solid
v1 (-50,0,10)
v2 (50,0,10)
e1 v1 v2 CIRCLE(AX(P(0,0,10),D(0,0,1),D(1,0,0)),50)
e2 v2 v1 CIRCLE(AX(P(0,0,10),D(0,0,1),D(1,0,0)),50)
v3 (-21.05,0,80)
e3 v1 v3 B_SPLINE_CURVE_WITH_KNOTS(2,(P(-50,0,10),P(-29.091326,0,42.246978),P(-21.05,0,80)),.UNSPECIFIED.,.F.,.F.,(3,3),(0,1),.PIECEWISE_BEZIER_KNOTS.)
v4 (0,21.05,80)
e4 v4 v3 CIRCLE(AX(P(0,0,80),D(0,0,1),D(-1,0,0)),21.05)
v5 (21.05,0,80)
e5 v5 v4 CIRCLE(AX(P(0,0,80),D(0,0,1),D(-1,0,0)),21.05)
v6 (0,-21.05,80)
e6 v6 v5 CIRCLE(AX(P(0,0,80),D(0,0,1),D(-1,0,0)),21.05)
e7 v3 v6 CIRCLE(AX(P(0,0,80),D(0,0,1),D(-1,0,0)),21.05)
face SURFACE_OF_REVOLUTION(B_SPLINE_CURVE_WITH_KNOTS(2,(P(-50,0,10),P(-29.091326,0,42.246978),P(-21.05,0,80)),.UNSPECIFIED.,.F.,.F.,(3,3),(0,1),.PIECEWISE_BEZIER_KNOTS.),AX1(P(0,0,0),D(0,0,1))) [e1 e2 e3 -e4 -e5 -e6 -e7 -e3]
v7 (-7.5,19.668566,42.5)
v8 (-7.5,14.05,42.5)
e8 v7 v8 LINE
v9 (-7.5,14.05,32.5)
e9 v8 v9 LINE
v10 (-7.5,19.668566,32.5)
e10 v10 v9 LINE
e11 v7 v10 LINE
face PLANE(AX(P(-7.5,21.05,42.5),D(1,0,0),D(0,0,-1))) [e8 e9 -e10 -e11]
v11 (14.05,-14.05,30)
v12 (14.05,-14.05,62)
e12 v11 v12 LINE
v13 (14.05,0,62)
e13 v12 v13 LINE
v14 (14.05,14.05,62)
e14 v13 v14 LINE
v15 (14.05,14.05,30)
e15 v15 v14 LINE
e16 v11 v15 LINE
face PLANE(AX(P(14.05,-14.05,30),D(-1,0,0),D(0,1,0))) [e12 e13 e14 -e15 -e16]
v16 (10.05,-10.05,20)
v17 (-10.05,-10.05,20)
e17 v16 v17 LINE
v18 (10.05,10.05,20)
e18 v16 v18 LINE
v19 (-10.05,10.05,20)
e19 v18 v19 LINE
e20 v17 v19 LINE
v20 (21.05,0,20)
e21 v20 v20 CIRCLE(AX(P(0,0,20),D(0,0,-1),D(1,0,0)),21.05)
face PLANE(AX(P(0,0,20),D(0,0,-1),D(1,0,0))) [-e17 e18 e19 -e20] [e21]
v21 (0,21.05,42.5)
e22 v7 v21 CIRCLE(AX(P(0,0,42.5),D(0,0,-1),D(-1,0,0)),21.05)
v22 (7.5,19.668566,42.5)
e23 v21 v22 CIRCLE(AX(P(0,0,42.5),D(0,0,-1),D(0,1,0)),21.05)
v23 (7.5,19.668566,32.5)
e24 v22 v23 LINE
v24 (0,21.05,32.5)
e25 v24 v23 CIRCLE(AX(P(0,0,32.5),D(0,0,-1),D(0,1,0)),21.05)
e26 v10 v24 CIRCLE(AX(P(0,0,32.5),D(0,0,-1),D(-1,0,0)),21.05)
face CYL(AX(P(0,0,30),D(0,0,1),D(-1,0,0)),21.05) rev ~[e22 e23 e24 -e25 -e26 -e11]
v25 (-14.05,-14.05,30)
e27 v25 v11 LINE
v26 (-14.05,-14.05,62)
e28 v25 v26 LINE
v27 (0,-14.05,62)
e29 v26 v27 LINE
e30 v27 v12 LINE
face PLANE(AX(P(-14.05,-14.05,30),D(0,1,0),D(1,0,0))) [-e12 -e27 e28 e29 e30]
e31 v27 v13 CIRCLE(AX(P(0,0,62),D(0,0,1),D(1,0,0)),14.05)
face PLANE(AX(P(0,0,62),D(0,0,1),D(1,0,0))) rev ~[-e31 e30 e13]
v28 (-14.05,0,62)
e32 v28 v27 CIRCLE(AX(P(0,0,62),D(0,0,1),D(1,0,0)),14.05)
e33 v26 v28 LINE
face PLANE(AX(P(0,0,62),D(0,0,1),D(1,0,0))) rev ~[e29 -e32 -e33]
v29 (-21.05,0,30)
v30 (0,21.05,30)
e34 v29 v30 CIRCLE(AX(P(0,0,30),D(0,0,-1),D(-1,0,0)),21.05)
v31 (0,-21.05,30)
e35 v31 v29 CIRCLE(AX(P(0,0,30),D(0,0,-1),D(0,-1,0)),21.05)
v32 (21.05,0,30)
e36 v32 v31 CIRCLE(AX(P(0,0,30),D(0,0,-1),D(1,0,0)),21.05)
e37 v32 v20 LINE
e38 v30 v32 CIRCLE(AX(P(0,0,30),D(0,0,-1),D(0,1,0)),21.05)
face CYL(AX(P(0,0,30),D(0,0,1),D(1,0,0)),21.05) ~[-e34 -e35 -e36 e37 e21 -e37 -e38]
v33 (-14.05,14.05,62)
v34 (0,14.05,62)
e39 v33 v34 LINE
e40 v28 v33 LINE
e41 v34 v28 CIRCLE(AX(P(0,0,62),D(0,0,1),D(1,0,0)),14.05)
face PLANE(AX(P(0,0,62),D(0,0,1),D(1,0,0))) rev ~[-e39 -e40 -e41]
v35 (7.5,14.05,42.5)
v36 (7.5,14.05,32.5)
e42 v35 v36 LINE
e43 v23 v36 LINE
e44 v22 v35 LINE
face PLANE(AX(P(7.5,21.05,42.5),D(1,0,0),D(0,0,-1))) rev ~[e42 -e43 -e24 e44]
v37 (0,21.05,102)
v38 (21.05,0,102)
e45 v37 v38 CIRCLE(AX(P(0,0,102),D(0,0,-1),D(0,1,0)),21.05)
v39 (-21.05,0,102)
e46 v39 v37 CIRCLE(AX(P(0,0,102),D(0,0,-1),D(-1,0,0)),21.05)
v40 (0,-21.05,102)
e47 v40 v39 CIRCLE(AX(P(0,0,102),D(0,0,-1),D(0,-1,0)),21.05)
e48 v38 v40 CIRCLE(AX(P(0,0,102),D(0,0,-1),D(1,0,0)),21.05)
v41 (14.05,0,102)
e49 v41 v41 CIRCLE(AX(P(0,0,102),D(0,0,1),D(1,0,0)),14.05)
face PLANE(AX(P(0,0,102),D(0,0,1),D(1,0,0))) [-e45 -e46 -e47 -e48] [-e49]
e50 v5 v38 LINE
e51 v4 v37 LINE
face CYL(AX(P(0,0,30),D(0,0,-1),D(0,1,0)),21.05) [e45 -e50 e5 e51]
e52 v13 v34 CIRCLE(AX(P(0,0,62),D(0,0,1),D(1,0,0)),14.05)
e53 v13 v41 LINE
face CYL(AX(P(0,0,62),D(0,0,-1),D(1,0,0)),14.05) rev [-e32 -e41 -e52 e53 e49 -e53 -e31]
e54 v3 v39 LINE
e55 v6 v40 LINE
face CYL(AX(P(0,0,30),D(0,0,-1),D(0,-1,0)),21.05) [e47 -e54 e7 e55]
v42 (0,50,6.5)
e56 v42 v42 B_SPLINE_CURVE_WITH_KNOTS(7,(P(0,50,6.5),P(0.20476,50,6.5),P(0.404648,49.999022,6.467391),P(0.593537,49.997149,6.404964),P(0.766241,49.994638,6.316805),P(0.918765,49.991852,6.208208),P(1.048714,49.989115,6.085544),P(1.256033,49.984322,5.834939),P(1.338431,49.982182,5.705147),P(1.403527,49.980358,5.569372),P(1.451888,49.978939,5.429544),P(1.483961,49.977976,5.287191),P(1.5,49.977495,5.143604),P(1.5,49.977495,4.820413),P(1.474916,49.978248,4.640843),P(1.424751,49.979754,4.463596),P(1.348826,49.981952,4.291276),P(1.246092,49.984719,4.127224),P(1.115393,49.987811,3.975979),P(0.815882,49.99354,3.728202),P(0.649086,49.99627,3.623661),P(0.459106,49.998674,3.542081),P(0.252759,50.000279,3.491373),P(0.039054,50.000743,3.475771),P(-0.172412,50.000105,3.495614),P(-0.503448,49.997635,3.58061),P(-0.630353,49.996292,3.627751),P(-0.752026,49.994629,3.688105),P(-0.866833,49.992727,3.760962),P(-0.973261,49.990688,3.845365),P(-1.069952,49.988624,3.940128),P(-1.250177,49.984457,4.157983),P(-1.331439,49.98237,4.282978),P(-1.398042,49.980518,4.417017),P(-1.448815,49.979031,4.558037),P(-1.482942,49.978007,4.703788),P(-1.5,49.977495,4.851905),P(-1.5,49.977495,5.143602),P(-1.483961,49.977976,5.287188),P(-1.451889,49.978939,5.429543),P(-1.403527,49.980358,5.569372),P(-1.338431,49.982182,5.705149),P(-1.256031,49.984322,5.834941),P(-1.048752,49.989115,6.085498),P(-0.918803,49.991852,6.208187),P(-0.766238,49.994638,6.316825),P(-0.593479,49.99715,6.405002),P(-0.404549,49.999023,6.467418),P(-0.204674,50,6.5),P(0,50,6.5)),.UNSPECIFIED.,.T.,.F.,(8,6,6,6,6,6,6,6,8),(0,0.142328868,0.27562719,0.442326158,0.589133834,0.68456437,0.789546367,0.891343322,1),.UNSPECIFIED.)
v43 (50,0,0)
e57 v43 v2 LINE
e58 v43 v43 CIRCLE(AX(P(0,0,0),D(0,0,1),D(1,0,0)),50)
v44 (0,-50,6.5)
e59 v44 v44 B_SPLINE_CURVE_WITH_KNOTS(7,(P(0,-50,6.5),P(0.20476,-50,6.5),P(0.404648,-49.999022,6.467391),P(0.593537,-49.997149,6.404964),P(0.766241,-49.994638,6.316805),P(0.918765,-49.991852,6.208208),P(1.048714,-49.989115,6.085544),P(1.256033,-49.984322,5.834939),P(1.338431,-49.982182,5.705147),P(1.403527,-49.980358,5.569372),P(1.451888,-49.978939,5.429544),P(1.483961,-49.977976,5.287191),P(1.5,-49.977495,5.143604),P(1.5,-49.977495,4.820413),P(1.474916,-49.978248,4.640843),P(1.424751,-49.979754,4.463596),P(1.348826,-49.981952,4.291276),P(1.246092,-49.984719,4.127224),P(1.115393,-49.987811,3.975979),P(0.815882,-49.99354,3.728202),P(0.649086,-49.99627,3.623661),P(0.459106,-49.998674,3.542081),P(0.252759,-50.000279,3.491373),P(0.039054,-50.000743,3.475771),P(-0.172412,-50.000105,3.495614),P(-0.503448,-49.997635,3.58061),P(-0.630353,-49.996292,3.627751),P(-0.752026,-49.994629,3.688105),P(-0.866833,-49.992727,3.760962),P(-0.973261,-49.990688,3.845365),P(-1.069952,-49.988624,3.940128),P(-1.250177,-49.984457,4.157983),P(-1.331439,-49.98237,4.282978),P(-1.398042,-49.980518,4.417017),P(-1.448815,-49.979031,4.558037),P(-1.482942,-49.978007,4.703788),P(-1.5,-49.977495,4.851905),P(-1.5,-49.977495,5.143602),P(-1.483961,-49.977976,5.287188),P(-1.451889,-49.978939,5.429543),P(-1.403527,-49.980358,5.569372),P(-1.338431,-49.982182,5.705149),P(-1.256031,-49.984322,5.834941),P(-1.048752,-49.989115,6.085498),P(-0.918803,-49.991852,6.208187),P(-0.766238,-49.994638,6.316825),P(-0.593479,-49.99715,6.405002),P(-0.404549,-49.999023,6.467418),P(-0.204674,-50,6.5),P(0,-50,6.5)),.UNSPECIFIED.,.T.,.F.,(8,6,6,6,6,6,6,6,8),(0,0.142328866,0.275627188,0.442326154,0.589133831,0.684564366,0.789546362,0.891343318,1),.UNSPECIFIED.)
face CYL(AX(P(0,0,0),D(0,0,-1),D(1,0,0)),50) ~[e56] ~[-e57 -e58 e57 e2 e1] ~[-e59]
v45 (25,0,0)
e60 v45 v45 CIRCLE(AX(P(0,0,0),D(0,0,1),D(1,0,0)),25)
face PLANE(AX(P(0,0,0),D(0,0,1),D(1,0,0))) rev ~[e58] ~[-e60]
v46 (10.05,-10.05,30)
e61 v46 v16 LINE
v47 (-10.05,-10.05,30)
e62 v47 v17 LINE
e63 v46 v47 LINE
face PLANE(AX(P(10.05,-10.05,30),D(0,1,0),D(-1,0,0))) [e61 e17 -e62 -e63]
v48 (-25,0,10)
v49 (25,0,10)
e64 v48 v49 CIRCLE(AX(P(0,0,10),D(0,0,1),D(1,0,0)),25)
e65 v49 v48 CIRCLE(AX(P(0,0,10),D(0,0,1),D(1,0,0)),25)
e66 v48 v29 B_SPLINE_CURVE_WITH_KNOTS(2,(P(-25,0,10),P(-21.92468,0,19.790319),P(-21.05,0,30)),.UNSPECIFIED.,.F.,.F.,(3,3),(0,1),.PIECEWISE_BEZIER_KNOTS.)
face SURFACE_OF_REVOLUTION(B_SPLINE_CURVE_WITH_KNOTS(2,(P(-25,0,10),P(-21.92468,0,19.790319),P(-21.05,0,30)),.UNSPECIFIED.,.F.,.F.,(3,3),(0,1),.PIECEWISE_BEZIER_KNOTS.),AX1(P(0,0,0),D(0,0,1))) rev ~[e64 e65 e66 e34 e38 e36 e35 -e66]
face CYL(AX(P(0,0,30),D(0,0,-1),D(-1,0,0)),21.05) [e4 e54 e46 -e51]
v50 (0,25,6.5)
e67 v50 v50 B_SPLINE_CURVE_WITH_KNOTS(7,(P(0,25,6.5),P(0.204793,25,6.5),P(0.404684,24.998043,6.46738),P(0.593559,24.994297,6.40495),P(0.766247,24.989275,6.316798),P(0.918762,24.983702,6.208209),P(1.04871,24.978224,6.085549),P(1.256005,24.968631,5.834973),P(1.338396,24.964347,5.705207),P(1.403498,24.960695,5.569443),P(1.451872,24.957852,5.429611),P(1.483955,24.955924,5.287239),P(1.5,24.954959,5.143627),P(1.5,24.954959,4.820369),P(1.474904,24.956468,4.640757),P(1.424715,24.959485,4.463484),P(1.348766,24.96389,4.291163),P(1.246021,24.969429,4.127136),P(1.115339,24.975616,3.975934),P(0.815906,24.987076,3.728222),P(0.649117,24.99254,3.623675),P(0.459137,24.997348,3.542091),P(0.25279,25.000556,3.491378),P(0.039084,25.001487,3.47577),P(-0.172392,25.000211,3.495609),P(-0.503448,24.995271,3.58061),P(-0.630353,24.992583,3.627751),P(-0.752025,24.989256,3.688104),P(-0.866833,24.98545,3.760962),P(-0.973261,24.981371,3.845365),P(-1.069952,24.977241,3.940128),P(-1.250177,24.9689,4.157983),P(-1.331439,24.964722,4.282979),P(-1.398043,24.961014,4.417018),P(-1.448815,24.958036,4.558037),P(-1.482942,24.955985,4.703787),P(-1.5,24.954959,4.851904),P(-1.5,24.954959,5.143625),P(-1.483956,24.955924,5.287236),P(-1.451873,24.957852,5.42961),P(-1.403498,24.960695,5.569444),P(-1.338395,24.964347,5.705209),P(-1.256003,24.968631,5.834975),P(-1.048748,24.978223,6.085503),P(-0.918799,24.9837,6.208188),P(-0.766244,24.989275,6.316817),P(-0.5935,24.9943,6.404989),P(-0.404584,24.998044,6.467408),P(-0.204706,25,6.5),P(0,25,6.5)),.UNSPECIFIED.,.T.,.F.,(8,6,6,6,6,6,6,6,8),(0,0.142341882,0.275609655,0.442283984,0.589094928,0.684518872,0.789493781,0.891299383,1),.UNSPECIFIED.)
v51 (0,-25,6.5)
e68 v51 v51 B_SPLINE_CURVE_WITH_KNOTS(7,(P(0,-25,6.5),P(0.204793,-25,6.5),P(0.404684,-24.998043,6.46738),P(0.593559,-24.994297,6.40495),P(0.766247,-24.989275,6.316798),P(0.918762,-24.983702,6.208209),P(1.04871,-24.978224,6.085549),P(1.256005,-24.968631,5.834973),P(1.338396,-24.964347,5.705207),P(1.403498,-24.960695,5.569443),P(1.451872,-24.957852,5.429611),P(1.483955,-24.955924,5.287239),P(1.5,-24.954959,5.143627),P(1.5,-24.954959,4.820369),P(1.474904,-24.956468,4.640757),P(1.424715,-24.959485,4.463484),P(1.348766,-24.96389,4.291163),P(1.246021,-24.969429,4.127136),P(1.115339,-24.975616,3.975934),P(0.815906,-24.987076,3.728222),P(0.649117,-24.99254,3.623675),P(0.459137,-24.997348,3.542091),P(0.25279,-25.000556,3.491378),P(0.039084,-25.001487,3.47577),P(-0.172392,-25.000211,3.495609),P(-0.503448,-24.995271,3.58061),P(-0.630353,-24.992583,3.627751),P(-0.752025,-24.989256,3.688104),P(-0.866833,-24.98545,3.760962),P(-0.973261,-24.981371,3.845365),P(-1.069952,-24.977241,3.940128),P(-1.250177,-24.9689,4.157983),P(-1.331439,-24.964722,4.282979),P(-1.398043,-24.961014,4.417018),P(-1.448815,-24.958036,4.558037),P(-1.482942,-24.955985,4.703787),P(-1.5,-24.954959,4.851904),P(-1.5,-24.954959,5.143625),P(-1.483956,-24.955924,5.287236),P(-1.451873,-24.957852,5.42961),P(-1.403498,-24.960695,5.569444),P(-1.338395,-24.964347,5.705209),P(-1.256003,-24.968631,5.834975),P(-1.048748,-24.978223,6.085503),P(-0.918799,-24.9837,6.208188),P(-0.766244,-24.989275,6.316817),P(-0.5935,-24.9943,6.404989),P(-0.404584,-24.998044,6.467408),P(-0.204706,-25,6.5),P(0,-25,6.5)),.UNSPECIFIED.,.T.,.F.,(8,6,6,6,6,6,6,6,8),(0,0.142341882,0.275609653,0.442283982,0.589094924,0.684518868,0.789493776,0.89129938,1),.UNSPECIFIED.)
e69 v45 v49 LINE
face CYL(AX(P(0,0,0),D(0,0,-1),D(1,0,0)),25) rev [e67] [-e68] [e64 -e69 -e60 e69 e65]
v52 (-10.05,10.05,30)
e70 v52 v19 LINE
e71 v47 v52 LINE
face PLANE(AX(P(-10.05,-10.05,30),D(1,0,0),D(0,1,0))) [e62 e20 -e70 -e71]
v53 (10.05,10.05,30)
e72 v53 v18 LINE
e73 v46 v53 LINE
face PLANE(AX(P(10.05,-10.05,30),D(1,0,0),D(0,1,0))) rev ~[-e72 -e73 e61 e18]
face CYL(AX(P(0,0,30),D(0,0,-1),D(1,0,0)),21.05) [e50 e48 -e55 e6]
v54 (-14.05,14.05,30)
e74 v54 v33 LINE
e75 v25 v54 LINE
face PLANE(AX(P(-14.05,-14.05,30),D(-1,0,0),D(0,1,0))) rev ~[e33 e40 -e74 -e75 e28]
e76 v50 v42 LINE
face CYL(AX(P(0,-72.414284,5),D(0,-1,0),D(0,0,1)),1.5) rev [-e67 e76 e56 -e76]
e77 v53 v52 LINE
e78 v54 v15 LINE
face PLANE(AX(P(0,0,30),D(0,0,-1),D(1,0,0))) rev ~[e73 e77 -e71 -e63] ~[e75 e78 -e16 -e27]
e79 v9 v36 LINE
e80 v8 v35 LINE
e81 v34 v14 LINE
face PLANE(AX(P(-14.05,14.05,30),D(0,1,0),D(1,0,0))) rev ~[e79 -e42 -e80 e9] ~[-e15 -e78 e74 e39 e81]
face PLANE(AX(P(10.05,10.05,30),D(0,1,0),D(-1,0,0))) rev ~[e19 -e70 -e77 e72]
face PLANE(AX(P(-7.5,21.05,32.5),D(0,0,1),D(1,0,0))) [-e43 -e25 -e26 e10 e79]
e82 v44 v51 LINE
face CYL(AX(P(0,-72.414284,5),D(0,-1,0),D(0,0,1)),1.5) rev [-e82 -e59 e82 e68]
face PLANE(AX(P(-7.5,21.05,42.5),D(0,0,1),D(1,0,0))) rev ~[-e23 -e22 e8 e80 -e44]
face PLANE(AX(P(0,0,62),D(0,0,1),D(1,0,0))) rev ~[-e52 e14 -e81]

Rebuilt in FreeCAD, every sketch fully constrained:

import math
import FreeCAD as App
import Part
import Sketcher

doc = App.newDocument("Part")
body = doc.addObject("PartDesign::Body", "Body")

# Sketch on XY plane
sketch1 = body.newObject("Sketcher::SketchObject", "Sketch")
sketch1.AttachmentSupport = (doc.getObject("XY_Plane"), [""])
sketch1.MapMode = "FlatFace"
sketch1.addGeometry([
    Part.Circle(App.Vector(0, 0, 0), App.Vector(0, 0, 1), 50),
    Part.Circle(App.Vector(0, 0, 0), App.Vector(0, 0, 1), 25),
], False)
sketch1.addConstraint([
    Sketcher.Constraint("Coincident", 0, 3, -1, 1),
    Sketcher.Constraint("Coincident", 1, 3, -1, 1),
    Sketcher.Constraint("Diameter", 0, 100.0),
    Sketcher.Constraint("Diameter", 1, 50.0),
])
pad1 = body.newObject("PartDesign::Pad", "Pad")
pad1.Profile = sketch1
pad1.Length = 10

# Sketch on XZ plane
sketch2 = body.newObject("Sketcher::SketchObject", "Sketch001")
sketch2.AttachmentSupport = (doc.getObject("XZ_Plane"), [""])
sketch2.MapMode = "FlatFace"
sketch2.addGeometry(Part.Circle(App.Vector(0, 5, 0), App.Vector(0, 0, 1), 1.5), False)
sketch2.addConstraint([
    Sketcher.Constraint("PointOnObject", 0, 3, -2),
    Sketcher.Constraint("Diameter", 0, 3.0),
    Sketcher.Constraint("DistanceY", -1, 1, 0, 3, 5.0),
])
pocket1 = body.newObject("PartDesign::Pocket", "Pocket")
pocket1.Profile = sketch2
pocket1.Type = "ThroughAll"
pocket1.Midplane = True
body2 = doc.addObject("PartDesign::Body", "Body001")

# Sketch on XY plane
sketch3 = body2.newObject("Sketcher::SketchObject", "Sketch002")
sketch3.AttachmentSupport = (doc.getObject("XY_Plane001"), [""])
sketch3.MapMode = "FlatFace"
sketch3.AttachmentOffset = App.Placement(App.Vector(0, 0, 30), App.Rotation())
sketch3.addGeometry([
    Part.LineSegment(App.Vector(-21, 21, 0), App.Vector(-21, -21, 0)),  # 0
    Part.LineSegment(App.Vector(-21, -21, 0), App.Vector(21, -21, 0)),  # 1
    Part.LineSegment(App.Vector(21, -21, 0), App.Vector(21, 21, 0)),  # 2
    Part.LineSegment(App.Vector(21, 21, 0), App.Vector(-21, 21, 0)),  # 3
    Part.LineSegment(App.Vector(14, -14, 0), App.Vector(-14, -14, 0)),  # 4
    Part.LineSegment(App.Vector(-14, -14, 0), App.Vector(-14, 14, 0)),  # 5
    Part.LineSegment(App.Vector(-14, 14, 0), App.Vector(14, 14, 0)),  # 6
    Part.LineSegment(App.Vector(14, 14, 0), App.Vector(14, -14, 0)),  # 7
], False)
sketch3.addConstraint([
    Sketcher.Constraint("Coincident", 0, 2, 1, 1),
    Sketcher.Constraint("Coincident", 1, 2, 2, 1),
    Sketcher.Constraint("Coincident", 2, 2, 3, 1),
    Sketcher.Constraint("Coincident", 3, 2, 0, 1),
    Sketcher.Constraint("Coincident", 4, 2, 5, 1),
    Sketcher.Constraint("Coincident", 5, 2, 6, 1),
    Sketcher.Constraint("Coincident", 6, 2, 7, 1),
    Sketcher.Constraint("Coincident", 7, 2, 4, 1),
    Sketcher.Constraint("Vertical", 0),
    Sketcher.Constraint("Horizontal", 1),
    Sketcher.Constraint("Vertical", 2),
    Sketcher.Constraint("Horizontal", 3),
    Sketcher.Constraint("Horizontal", 4),
    Sketcher.Constraint("Vertical", 5),
    Sketcher.Constraint("Horizontal", 6),
    Sketcher.Constraint("Vertical", 7),
    Sketcher.Constraint("Symmetric", 0, 2, 2, 2, -1, 1),
    Sketcher.Constraint("Symmetric", 4, 2, 6, 2, -1, 1),
    Sketcher.Constraint("Equal", 3, 0),
    Sketcher.Constraint("Equal", 6, 5),
    Sketcher.Constraint("DistanceX", 1, 1, 1, 2, 42.1),
    Sketcher.Constraint("DistanceX", 4, 2, 4, 1, 28.1),
])
pad2 = body2.newObject("PartDesign::Pad", "Pad001")
pad2.Profile = sketch3
pad2.Length = 32

# Sketch on XZ plane
sketch4 = body2.newObject("Sketcher::SketchObject", "Sketch003")
sketch4.AttachmentSupport = (doc.getObject("XZ_Plane001"), [""])
sketch4.MapMode = "FlatFace"
sketch4.AttachmentOffset = App.Placement(App.Vector(0, 0, -21.05), App.Rotation())
sketch4.addGeometry([
    Part.LineSegment(App.Vector(-8, 32, 0), App.Vector(-8, 42, 0)),
    Part.LineSegment(App.Vector(-8, 42, 0), App.Vector(8, 42, 0)),
    Part.LineSegment(App.Vector(8, 42, 0), App.Vector(8, 32, 0)),
    Part.LineSegment(App.Vector(8, 32, 0), App.Vector(-8, 32, 0)),
], False)
sketch4.addConstraint([
    Sketcher.Constraint("Coincident", 0, 2, 1, 1),
    Sketcher.Constraint("Coincident", 1, 2, 2, 1),
    Sketcher.Constraint("Coincident", 2, 2, 3, 1),
    Sketcher.Constraint("Coincident", 3, 2, 0, 1),
    Sketcher.Constraint("Vertical", 0),
    Sketcher.Constraint("Horizontal", 1),
    Sketcher.Constraint("Vertical", 2),
    Sketcher.Constraint("Horizontal", 3),
    Sketcher.Constraint("DistanceX", 1, 1, 1, 2, 15.0),
    Sketcher.Constraint("DistanceY", 0, 1, 0, 2, 10.0),
    Sketcher.Constraint("DistanceX", 0, 2, -1, 1, 7.5),
    Sketcher.Constraint("DistanceY", -1, 1, 0, 2, 42.5),
])
pocket2 = body2.newObject("PartDesign::Pocket", "Pocket001")
pocket2.Profile = sketch4
pocket2.Length = 7
pocket2.Reversed = True

# Sketch on XY plane
sketch5 = body2.newObject("Sketcher::SketchObject", "Sketch004")
sketch5.AttachmentSupport = (doc.getObject("XY_Plane001"), [""])
sketch5.MapMode = "FlatFace"
sketch5.AttachmentOffset = App.Placement(App.Vector(0, 0, 62), App.Rotation())
sketch5.addGeometry([
    Part.LineSegment(App.Vector(-21, 21, 0), App.Vector(-21, -21, 0)),  # 0
    Part.LineSegment(App.Vector(-21, -21, 0), App.Vector(21, -21, 0)),  # 1
    Part.LineSegment(App.Vector(21, -21, 0), App.Vector(21, 21, 0)),  # 2
    Part.LineSegment(App.Vector(21, 21, 0), App.Vector(-21, 21, 0)),  # 3
    Part.Circle(App.Vector(0, 0, 0), App.Vector(0, 0, 1), 14),  # 4
], False)
sketch5.addConstraint([
    Sketcher.Constraint("Coincident", 0, 2, 1, 1),
    Sketcher.Constraint("Coincident", 1, 2, 2, 1),
    Sketcher.Constraint("Coincident", 2, 2, 3, 1),
    Sketcher.Constraint("Coincident", 3, 2, 0, 1),
    Sketcher.Constraint("Vertical", 0),
    Sketcher.Constraint("Horizontal", 1),
    Sketcher.Constraint("Vertical", 2),
    Sketcher.Constraint("Horizontal", 3),
    Sketcher.Constraint("Coincident", 4, 3, -1, 1),
    Sketcher.Constraint("Symmetric", 0, 2, 2, 2, -1, 1),
    Sketcher.Constraint("Equal", 3, 0),
    Sketcher.Constraint("Diameter", 4, 28.1),
    Sketcher.Constraint("DistanceX", 1, 1, 1, 2, 42.1),
])
pad3 = body2.newObject("PartDesign::Pad", "Pad002")
pad3.Profile = sketch5
pad3.Length = 40

# Sketch on XY plane
sketch6 = body2.newObject("Sketcher::SketchObject", "Sketch005")
sketch6.AttachmentSupport = (doc.getObject("XY_Plane001"), [""])
sketch6.MapMode = "FlatFace"
sketch6.AttachmentOffset = App.Placement(App.Vector(0, 0, 30), App.Rotation())
sketch6.addGeometry([
    Part.LineSegment(App.Vector(0, 21, 0), App.Vector(-21, 21, 0)),
    Part.LineSegment(App.Vector(-21, 21, 0), App.Vector(-21, 0, 0)),
    Part.ArcOfCircle(Part.Circle(App.Vector(0, 0, 0), App.Vector(0, 0, 1), 21), math.radians(90), math.radians(180)),
], False)
sketch6.addConstraint([
    Sketcher.Constraint("Coincident", 0, 2, 1, 1),
    Sketcher.Constraint("Tangent", 1, 2, 2, 2),
    Sketcher.Constraint("Tangent", 2, 1, 0, 1),
    Sketcher.Constraint("Horizontal", 0),
    Sketcher.Constraint("Vertical", 1),
    Sketcher.Constraint("Coincident", 2, 3, -1, 1),
    Sketcher.Constraint("Radius", 2, 21.05),
])
pocket3 = body2.newObject("PartDesign::Pocket", "Pocket002")
pocket3.Profile = sketch6
pocket3.Length = 72
pocket3.Reversed = True
doc.recompute()

polarpattern = body2.newObject("PartDesign::PolarPattern", "PolarPattern")
polarpattern.Originals = [pocket3]
polarpattern.Axis = (doc.getObject("Z_Axis001"), [""])
polarpattern.Angle = 360
polarpattern.Occurrences = 4
body2.Tip = polarpattern
body.AllowCompound = True
doc.recompute()

boolean = body.newObject("PartDesign::Boolean", "Boolean")
boolean.Type = "Fuse"
boolean.addObjects([body2])

# Sketch on XZ plane
sketch7 = body.newObject("Sketcher::SketchObject", "Sketch006")
sketch7.AttachmentSupport = (doc.getObject("XZ_Plane"), [""])
sketch7.MapMode = "FlatFace"
sketch7.addGeometry([
    Part.LineSegment(App.Vector(-25, 10, 0), App.Vector(-50, 10, 0)),
    Part.BSplineCurve([App.Vector(-50, 10, 0), App.Vector(-29.091326, 42.246978, 0), App.Vector(-21.05, 80, 0)], [3, 3], [0, 1], False, 2, [1, 1, 1], False),
    Part.LineSegment(App.Vector(-21.05, 80, 0), App.Vector(-21.05, 30, 0)),
    Part.BSplineCurve([App.Vector(-25, 10, 0), App.Vector(-21.92468, 19.790319, 0), App.Vector(-21.05, 30, 0)], [3, 3], [0, 1], False, 2, [1, 1, 1], False),
], False)
sketch7.addConstraint([
    Sketcher.Constraint("Block", 1),
    Sketcher.Constraint("Block", 3),
    Sketcher.Constraint("Coincident", 0, 2, 1, 1),
    Sketcher.Constraint("Coincident", 1, 2, 2, 1),
    Sketcher.Constraint("Coincident", 2, 2, 3, 2),
    Sketcher.Constraint("Coincident", 3, 1, 0, 1),
])
revolution = body.newObject("PartDesign::Revolution", "Revolution")
revolution.Profile = sketch7
revolution.ReferenceAxis = (sketch7, ["V_Axis"])
revolution.Angle = 360

# Sketch on XY plane
sketch8 = body.newObject("Sketcher::SketchObject", "Sketch007")
sketch8.AttachmentSupport = (doc.getObject("XY_Plane"), [""])
sketch8.MapMode = "FlatFace"
sketch8.AttachmentOffset = App.Placement(App.Vector(0, 0, 30), App.Rotation())
sketch8.addGeometry([
    Part.Circle(App.Vector(0, 0, 0), App.Vector(0, 0, 1), 21),  # 0
    Part.LineSegment(App.Vector(-10, -10, 0), App.Vector(10, -10, 0)),  # 1
    Part.LineSegment(App.Vector(10, -10, 0), App.Vector(10, 10, 0)),  # 2
    Part.LineSegment(App.Vector(10, 10, 0), App.Vector(-10, 10, 0)),  # 3
    Part.LineSegment(App.Vector(-10, 10, 0), App.Vector(-10, -10, 0)),  # 4
], False)
sketch8.addConstraint([
    Sketcher.Constraint("Coincident", 1, 2, 2, 1),
    Sketcher.Constraint("Coincident", 2, 2, 3, 1),
    Sketcher.Constraint("Coincident", 3, 2, 4, 1),
    Sketcher.Constraint("Coincident", 4, 2, 1, 1),
    Sketcher.Constraint("Horizontal", 1),
    Sketcher.Constraint("Vertical", 2),
    Sketcher.Constraint("Horizontal", 3),
    Sketcher.Constraint("Vertical", 4),
    Sketcher.Constraint("Coincident", 0, 3, -1, 1),
    Sketcher.Constraint("Symmetric", 1, 2, 3, 2, -1, 1),
    Sketcher.Constraint("Equal", 3, 2),
    Sketcher.Constraint("Diameter", 0, 42.1),
    Sketcher.Constraint("DistanceX", 1, 1, 1, 2, 20.1),
])
pad4 = body.newObject("PartDesign::Pad", "Pad003")
pad4.Profile = sketch8
pad4.Length = 10
pad4.Reversed = True

doc.recompute()
